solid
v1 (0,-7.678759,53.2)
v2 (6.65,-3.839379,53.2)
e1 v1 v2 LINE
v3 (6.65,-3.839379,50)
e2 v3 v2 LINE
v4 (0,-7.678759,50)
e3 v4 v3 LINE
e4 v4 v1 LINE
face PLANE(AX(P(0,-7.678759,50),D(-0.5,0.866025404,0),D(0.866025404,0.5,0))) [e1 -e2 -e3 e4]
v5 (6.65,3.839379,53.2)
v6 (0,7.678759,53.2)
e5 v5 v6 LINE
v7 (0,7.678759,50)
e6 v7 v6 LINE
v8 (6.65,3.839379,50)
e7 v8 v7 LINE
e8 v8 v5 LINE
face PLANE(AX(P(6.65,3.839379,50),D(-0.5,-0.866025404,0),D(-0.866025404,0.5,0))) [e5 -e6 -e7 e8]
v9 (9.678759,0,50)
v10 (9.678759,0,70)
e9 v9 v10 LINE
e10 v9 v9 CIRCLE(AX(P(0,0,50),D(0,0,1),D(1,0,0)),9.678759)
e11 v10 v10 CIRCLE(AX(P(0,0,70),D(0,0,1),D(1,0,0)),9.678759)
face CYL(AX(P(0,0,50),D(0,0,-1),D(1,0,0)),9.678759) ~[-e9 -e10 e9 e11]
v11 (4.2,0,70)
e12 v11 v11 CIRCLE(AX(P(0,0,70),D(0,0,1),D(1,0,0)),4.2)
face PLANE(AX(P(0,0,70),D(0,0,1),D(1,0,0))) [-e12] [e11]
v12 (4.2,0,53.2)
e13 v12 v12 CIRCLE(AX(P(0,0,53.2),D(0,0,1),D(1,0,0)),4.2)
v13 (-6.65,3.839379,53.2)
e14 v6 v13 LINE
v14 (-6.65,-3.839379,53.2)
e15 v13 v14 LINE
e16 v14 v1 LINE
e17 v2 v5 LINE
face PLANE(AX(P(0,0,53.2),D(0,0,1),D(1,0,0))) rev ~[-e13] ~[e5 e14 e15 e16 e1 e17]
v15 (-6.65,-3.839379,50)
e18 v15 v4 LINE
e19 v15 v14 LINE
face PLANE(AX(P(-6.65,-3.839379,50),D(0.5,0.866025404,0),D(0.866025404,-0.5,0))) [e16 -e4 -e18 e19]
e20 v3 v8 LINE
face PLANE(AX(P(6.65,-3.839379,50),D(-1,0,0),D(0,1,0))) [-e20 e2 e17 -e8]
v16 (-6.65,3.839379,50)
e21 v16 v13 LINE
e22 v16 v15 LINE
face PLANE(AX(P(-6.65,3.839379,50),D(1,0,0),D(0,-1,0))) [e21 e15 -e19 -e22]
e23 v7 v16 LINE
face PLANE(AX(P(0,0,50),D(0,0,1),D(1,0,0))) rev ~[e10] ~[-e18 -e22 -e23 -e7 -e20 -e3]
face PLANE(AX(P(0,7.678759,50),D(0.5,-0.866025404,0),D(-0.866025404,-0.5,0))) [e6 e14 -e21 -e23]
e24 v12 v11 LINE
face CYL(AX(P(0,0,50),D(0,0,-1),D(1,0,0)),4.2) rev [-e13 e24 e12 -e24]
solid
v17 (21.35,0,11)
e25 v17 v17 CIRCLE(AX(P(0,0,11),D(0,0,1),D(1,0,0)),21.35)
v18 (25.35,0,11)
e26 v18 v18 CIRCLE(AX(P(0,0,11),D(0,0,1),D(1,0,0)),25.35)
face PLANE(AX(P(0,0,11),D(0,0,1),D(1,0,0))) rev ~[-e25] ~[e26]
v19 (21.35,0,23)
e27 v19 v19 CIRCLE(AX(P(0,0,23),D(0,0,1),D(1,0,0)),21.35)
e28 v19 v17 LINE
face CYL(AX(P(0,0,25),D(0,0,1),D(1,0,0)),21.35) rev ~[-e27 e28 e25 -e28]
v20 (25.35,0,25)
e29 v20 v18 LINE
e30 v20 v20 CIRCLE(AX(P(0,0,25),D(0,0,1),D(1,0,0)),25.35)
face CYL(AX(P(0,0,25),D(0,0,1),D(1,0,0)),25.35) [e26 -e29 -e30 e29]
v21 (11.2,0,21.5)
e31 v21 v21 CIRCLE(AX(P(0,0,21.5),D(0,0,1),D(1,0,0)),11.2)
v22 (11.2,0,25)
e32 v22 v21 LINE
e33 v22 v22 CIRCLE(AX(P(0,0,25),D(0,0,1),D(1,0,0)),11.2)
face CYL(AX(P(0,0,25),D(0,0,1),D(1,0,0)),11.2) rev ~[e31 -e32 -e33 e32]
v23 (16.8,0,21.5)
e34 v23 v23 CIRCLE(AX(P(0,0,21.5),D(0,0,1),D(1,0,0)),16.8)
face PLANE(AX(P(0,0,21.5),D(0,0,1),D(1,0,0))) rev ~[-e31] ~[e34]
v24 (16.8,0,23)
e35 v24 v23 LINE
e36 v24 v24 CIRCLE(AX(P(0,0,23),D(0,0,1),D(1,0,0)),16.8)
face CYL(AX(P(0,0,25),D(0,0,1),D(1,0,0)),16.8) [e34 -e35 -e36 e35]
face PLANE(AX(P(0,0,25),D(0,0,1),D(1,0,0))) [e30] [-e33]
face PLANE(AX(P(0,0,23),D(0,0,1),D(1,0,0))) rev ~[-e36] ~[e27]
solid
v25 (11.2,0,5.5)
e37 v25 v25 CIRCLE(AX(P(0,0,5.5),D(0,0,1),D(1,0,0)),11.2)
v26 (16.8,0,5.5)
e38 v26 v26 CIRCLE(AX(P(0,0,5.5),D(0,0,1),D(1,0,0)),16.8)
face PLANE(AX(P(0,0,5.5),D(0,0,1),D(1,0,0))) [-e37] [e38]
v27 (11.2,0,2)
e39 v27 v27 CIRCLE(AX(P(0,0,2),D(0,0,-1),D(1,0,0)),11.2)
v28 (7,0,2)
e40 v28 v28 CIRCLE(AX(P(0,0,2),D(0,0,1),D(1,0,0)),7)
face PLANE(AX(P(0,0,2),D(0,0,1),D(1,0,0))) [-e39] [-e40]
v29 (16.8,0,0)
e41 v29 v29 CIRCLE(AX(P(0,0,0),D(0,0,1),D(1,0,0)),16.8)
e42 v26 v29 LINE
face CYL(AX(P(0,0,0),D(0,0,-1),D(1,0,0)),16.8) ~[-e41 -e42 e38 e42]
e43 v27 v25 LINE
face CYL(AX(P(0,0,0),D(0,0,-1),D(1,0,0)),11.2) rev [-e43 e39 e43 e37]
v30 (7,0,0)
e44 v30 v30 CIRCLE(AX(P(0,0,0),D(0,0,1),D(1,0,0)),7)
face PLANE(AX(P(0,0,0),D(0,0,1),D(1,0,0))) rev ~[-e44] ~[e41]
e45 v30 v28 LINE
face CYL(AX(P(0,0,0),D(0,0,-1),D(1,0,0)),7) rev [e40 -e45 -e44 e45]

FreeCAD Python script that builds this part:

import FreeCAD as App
import Part
import Sketcher

V = App.Vector
Q = App.Units.Quantity


def add_polygon(sketch, points):
    """Adds a closed chain of lines whose ends are joined by coincident constraints."""
    first, n = sketch.GeometryCount, len(points)
    for a, b in zip(points, points[1:] + points[:1]):
        sketch.addGeometry(Part.LineSegment(App.Vector(*a, 0), App.Vector(*b, 0)), False)
    for i in range(n):
        sketch.addConstraint(Sketcher.Constraint("Coincident", first + i, 2, first + (i + 1) % n, 1))

doc = App.newDocument("Part")
params = doc.addObject("Spreadsheet::Sheet", "Params")
for row, (alias, value) in enumerate([
    ("sketch1_diameter", "14 mm"),
    ("sketch1_diameter2", "33.6 mm"),
    ("pad1_length", "2 mm"),
    ("sketch2_diameter", "33.6 mm"),
    ("sketch2_diameter2", "22.4 mm"),
    ("pad2_length", "5.5 mm"),
    ("sketch3_diameter", "33.6 mm"),
    ("sketch3_diameter2", "22.4 mm"),
    ("pad3_length", "3.5 mm"),
    ("sketch4_diameter", "42.7 mm"),
    ("sketch4_diameter2", "33.6 mm"),
    ("pad4_length", "2 mm"),
    ("sketch5_diameter", "50.7 mm"),
    ("sketch5_diameter2", "42.7 mm"),
    ("pad5_length", "14 mm"),
    ("sketch6_diameter", "8.4 mm"),
    ("pad6_length", "20 mm"),
    ("sketch7_diameter", "8.4 mm"),
    ("pocket1_length", "3.2 mm"),
], start=1):
    params.set(f"A{row}", alias)
    params.set(f"B{row}", "=" + value)
    params.setAlias(f"B{row}", alias)

body = doc.addObject("PartDesign::Body", "Body")

# Sketch on XY plane
sketch1 = doc.addObject("Sketcher::SketchObject", "Sketch")
body.addObject(sketch1)
sketch1.AttachmentSupport = (doc.XY_Plane, [""])
sketch1.MapMode = "FlatFace"
sketch1.addGeometry(Part.Circle(V(0, 0, 0), V(0, 0, 1), 16.8), False)
sketch1.addGeometry(Part.Circle(V(0, 0, 0), V(0, 0, 1), 7), False)
sketch1.addConstraint(Sketcher.Constraint("Coincident", 0, 3, -1, 1))
sketch1.addConstraint(Sketcher.Constraint("Coincident", 1, 3, -1, 1))
sketch1.addConstraint(Sketcher.Constraint("Diameter", 1, Q("14 mm")))
sketch1.addConstraint(Sketcher.Constraint("Diameter", 0, Q("33.6 mm")))
sketch1.setExpression("Constraints[2]", "Params.sketch1_diameter")
sketch1.setExpression("Constraints[3]", "Params.sketch1_diameter2")
pad1 = doc.addObject("PartDesign::Pad", "Pad")
body.addObject(pad1)
pad1.Profile = sketch1
pad1.setExpression("Length", "Params.pad1_length")

# Sketch on XY plane
sketch2 = doc.addObject("Sketcher::SketchObject", "Sketch001")
body.addObject(sketch2)
sketch2.AttachmentSupport = (doc.XY_Plane, [""])
sketch2.MapMode = "FlatFace"
sketch2.addGeometry(Part.Circle(V(0, 0, 0), V(0, 0, 1), 16.8), False)
sketch2.addGeometry(Part.Circle(V(0, 0, 0), V(0, 0, 1), 11.2), False)
sketch2.addConstraint(Sketcher.Constraint("Coincident", 0, 3, -1, 1))
sketch2.addConstraint(Sketcher.Constraint("Coincident", 1, 3, -1, 1))
sketch2.addConstraint(Sketcher.Constraint("Diameter", 0, Q("33.6 mm")))
sketch2.addConstraint(Sketcher.Constraint("Diameter", 1, Q("22.4 mm")))
sketch2.setExpression("Constraints[2]", "Params.sketch2_diameter")
sketch2.setExpression("Constraints[3]", "Params.sketch2_diameter2")
pad2 = doc.addObject("PartDesign::Pad", "Pad001")
body.addObject(pad2)
pad2.Profile = sketch2
pad2.setExpression("Length", "Params.pad2_length")
body2 = doc.addObject("PartDesign::Body", "Body001")

# Sketch on XY plane
sketch3 = doc.addObject("Sketcher::SketchObject", "Sketch002")
body2.addObject(sketch3)
sketch3.AttachmentSupport = (doc.getObject("XY_Plane001"), [""])
sketch3.MapMode = "FlatFace"
sketch3.AttachmentOffset = App.Placement(V(0, 0, 25), App.Rotation())
sketch3.addGeometry(Part.Circle(V(0, 0, 0), V(0, 0, 1), 16.8), False)
sketch3.addGeometry(Part.Circle(V(0, 0, 0), V(0, 0, 1), 11.2), False)
sketch3.addConstraint(Sketcher.Constraint("Coincident", 0, 3, -1, 1))
sketch3.addConstraint(Sketcher.Constraint("Coincident", 1, 3, -1, 1))
sketch3.addConstraint(Sketcher.Constraint("Diameter", 0, Q("33.6 mm")))
sketch3.addConstraint(Sketcher.Constraint("Diameter", 1, Q("22.4 mm")))
sketch3.setExpression("Constraints[2]", "Params.sketch3_diameter")
sketch3.setExpression("Constraints[3]", "Params.sketch3_diameter2")
pad3 = doc.addObject("PartDesign::Pad", "Pad002")
body2.addObject(pad3)
pad3.Profile = sketch3
pad3.setExpression("Length", "Params.pad3_length")
pad3.Reversed = True

# Sketch on XY plane
sketch4 = doc.addObject("Sketcher::SketchObject", "Sketch003")
body2.addObject(sketch4)
sketch4.AttachmentSupport = (doc.getObject("XY_Plane001"), [""])
sketch4.MapMode = "FlatFace"
sketch4.AttachmentOffset = App.Placement(V(0, 0, 25), App.Rotation())
sketch4.addGeometry(Part.Circle(V(0, 0, 0), V(0, 0, 1), 21.35), False)
sketch4.addGeometry(Part.Circle(V(0, 0, 0), V(0, 0, 1), 16.8), False)
sketch4.addConstraint(Sketcher.Constraint("Coincident", 0, 3, -1, 1))
sketch4.addConstraint(Sketcher.Constraint("Coincident", 1, 3, -1, 1))
sketch4.addConstraint(Sketcher.Constraint("Diameter", 0, Q("42.7 mm")))
sketch4.addConstraint(Sketcher.Constraint("Diameter", 1, Q("33.6 mm")))
sketch4.setExpression("Constraints[2]", "Params.sketch4_diameter")
sketch4.setExpression("Constraints[3]", "Params.sketch4_diameter2")
pad4 = doc.addObject("PartDesign::Pad", "Pad003")
body2.addObject(pad4)
pad4.Profile = sketch4
pad4.setExpression("Length", "Params.pad4_length")
pad4.Reversed = True

# Sketch on XY plane
sketch5 = doc.addObject("Sketcher::SketchObject", "Sketch004")
body2.addObject(sketch5)
sketch5.AttachmentSupport = (doc.getObject("XY_Plane001"), [""])
sketch5.MapMode = "FlatFace"
sketch5.AttachmentOffset = App.Placement(V(0, 0, 25), App.Rotation())
sketch5.addGeometry(Part.Circle(V(0, 0, 0), V(0, 0, 1), 25.35), False)
sketch5.addGeometry(Part.Circle(V(0, 0, 0), V(0, 0, 1), 21.35), False)
sketch5.addConstraint(Sketcher.Constraint("Coincident", 0, 3, -1, 1))
sketch5.addConstraint(Sketcher.Constraint("Coincident", 1, 3, -1, 1))
sketch5.addConstraint(Sketcher.Constraint("Diameter", 0, Q("50.7 mm")))
sketch5.addConstraint(Sketcher.Constraint("Diameter", 1, Q("42.7 mm")))
sketch5.setExpression("Constraints[2]", "Params.sketch5_diameter")
sketch5.setExpression("Constraints[3]", "Params.sketch5_diameter2")
pad5 = doc.addObject("PartDesign::Pad", "Pad004")
body2.addObject(pad5)
pad5.Profile = sketch5
pad5.setExpression("Length", "Params.pad5_length")
pad5.Reversed = True
body3 = doc.addObject("PartDesign::Body", "Body002")

# Sketch on XY plane
sketch6 = doc.addObject("Sketcher::SketchObject", "Sketch005")
body3.addObject(sketch6)
sketch6.AttachmentSupport = (doc.getObject("XY_Plane002"), [""])
sketch6.MapMode = "FlatFace"
sketch6.AttachmentOffset = App.Placement(V(0, 0, 50), App.Rotation())
sketch6.addGeometry(Part.Circle(V(0, 0, 0), V(0, 0, 1), 9.678759), False)
sketch6.addGeometry(Part.Circle(V(0, 0, 0), V(0, 0, 1), 4.2), False)
sketch6.addConstraint(Sketcher.Constraint("Coincident", 0, 3, -1, 1))
sketch6.addConstraint(Sketcher.Constraint("Coincident", 1, 3, -1, 1))
sketch6.addConstraint(Sketcher.Constraint("Diameter", 1, Q("8.4 mm")))
sketch6.addConstraint(Sketcher.Constraint("Diameter", 0, Q("19.357517 mm")))
sketch6.setExpression("Constraints[2]", "Params.sketch6_diameter")
pad6 = doc.addObject("PartDesign::Pad", "Pad005")
body3.addObject(pad6)
pad6.Profile = sketch6
pad6.setExpression("Length", "Params.pad6_length")

# Sketch on XY plane
sketch7 = doc.addObject("Sketcher::SketchObject", "Sketch006")
body3.addObject(sketch7)
sketch7.AttachmentSupport = (doc.getObject("XY_Plane002"), [""])
sketch7.MapMode = "FlatFace"
sketch7.AttachmentOffset = App.Placement(V(0, 0, 50), App.Rotation())
add_polygon(sketch7, [(6.65, -3.839379), (6.65, 3.839379), (0, 7.678759), (-6.65, 3.839379), (-6.65, -3.839379), (0, -7.678759)])  # lines 0-5
sketch7.addGeometry(Part.Circle(V(0, 0, 0), V(0, 0, 1), 4.2), False)  # 6
sketch7.addConstraint(Sketcher.Constraint("Vertical", 0))
sketch7.addConstraint(Sketcher.Constraint("Vertical", 3))
sketch7.addConstraint(Sketcher.Constraint("Coincident", 6, 3, -1, 1))
sketch7.addConstraint(Sketcher.Constraint("Symmetric", 0, 2, 3, 2, -1, 1))
sketch7.addConstraint(Sketcher.Constraint("Symmetric", 1, 2, 4, 2, -1, 1))
sketch7.addConstraint(Sketcher.Constraint("PointOnObject", 1, 2, -2))
sketch7.addConstraint(Sketcher.Constraint("Parallel", 2, 5))
sketch7.addConstraint(Sketcher.Constraint("Horizontal", 0, 2, 2, 2))
sketch7.addConstraint(Sketcher.Constraint("Diameter", 6, Q("8.4 mm")))
sketch7.addConstraint(Sketcher.Constraint("Angle", 1, Q("150 deg")))
sketch7.addConstraint(Sketcher.Constraint("DistanceX", 2, 2, 0, 2, Q("13.3 mm")))
sketch7.addConstraint(Sketcher.Constraint("DistanceY", 0, 1, 0, 2, Q("7.678759 mm")))
sketch7.setExpression("Constraints[14]", "Params.sketch7_diameter")
pocket1 = doc.addObject("PartDesign::Pocket", "Pocket")
body3.addObject(pocket1)
pocket1.Profile = sketch7
pocket1.setExpression("Length", "Params.pocket1_length")
pocket1.Reversed = True

doc.recompute()
